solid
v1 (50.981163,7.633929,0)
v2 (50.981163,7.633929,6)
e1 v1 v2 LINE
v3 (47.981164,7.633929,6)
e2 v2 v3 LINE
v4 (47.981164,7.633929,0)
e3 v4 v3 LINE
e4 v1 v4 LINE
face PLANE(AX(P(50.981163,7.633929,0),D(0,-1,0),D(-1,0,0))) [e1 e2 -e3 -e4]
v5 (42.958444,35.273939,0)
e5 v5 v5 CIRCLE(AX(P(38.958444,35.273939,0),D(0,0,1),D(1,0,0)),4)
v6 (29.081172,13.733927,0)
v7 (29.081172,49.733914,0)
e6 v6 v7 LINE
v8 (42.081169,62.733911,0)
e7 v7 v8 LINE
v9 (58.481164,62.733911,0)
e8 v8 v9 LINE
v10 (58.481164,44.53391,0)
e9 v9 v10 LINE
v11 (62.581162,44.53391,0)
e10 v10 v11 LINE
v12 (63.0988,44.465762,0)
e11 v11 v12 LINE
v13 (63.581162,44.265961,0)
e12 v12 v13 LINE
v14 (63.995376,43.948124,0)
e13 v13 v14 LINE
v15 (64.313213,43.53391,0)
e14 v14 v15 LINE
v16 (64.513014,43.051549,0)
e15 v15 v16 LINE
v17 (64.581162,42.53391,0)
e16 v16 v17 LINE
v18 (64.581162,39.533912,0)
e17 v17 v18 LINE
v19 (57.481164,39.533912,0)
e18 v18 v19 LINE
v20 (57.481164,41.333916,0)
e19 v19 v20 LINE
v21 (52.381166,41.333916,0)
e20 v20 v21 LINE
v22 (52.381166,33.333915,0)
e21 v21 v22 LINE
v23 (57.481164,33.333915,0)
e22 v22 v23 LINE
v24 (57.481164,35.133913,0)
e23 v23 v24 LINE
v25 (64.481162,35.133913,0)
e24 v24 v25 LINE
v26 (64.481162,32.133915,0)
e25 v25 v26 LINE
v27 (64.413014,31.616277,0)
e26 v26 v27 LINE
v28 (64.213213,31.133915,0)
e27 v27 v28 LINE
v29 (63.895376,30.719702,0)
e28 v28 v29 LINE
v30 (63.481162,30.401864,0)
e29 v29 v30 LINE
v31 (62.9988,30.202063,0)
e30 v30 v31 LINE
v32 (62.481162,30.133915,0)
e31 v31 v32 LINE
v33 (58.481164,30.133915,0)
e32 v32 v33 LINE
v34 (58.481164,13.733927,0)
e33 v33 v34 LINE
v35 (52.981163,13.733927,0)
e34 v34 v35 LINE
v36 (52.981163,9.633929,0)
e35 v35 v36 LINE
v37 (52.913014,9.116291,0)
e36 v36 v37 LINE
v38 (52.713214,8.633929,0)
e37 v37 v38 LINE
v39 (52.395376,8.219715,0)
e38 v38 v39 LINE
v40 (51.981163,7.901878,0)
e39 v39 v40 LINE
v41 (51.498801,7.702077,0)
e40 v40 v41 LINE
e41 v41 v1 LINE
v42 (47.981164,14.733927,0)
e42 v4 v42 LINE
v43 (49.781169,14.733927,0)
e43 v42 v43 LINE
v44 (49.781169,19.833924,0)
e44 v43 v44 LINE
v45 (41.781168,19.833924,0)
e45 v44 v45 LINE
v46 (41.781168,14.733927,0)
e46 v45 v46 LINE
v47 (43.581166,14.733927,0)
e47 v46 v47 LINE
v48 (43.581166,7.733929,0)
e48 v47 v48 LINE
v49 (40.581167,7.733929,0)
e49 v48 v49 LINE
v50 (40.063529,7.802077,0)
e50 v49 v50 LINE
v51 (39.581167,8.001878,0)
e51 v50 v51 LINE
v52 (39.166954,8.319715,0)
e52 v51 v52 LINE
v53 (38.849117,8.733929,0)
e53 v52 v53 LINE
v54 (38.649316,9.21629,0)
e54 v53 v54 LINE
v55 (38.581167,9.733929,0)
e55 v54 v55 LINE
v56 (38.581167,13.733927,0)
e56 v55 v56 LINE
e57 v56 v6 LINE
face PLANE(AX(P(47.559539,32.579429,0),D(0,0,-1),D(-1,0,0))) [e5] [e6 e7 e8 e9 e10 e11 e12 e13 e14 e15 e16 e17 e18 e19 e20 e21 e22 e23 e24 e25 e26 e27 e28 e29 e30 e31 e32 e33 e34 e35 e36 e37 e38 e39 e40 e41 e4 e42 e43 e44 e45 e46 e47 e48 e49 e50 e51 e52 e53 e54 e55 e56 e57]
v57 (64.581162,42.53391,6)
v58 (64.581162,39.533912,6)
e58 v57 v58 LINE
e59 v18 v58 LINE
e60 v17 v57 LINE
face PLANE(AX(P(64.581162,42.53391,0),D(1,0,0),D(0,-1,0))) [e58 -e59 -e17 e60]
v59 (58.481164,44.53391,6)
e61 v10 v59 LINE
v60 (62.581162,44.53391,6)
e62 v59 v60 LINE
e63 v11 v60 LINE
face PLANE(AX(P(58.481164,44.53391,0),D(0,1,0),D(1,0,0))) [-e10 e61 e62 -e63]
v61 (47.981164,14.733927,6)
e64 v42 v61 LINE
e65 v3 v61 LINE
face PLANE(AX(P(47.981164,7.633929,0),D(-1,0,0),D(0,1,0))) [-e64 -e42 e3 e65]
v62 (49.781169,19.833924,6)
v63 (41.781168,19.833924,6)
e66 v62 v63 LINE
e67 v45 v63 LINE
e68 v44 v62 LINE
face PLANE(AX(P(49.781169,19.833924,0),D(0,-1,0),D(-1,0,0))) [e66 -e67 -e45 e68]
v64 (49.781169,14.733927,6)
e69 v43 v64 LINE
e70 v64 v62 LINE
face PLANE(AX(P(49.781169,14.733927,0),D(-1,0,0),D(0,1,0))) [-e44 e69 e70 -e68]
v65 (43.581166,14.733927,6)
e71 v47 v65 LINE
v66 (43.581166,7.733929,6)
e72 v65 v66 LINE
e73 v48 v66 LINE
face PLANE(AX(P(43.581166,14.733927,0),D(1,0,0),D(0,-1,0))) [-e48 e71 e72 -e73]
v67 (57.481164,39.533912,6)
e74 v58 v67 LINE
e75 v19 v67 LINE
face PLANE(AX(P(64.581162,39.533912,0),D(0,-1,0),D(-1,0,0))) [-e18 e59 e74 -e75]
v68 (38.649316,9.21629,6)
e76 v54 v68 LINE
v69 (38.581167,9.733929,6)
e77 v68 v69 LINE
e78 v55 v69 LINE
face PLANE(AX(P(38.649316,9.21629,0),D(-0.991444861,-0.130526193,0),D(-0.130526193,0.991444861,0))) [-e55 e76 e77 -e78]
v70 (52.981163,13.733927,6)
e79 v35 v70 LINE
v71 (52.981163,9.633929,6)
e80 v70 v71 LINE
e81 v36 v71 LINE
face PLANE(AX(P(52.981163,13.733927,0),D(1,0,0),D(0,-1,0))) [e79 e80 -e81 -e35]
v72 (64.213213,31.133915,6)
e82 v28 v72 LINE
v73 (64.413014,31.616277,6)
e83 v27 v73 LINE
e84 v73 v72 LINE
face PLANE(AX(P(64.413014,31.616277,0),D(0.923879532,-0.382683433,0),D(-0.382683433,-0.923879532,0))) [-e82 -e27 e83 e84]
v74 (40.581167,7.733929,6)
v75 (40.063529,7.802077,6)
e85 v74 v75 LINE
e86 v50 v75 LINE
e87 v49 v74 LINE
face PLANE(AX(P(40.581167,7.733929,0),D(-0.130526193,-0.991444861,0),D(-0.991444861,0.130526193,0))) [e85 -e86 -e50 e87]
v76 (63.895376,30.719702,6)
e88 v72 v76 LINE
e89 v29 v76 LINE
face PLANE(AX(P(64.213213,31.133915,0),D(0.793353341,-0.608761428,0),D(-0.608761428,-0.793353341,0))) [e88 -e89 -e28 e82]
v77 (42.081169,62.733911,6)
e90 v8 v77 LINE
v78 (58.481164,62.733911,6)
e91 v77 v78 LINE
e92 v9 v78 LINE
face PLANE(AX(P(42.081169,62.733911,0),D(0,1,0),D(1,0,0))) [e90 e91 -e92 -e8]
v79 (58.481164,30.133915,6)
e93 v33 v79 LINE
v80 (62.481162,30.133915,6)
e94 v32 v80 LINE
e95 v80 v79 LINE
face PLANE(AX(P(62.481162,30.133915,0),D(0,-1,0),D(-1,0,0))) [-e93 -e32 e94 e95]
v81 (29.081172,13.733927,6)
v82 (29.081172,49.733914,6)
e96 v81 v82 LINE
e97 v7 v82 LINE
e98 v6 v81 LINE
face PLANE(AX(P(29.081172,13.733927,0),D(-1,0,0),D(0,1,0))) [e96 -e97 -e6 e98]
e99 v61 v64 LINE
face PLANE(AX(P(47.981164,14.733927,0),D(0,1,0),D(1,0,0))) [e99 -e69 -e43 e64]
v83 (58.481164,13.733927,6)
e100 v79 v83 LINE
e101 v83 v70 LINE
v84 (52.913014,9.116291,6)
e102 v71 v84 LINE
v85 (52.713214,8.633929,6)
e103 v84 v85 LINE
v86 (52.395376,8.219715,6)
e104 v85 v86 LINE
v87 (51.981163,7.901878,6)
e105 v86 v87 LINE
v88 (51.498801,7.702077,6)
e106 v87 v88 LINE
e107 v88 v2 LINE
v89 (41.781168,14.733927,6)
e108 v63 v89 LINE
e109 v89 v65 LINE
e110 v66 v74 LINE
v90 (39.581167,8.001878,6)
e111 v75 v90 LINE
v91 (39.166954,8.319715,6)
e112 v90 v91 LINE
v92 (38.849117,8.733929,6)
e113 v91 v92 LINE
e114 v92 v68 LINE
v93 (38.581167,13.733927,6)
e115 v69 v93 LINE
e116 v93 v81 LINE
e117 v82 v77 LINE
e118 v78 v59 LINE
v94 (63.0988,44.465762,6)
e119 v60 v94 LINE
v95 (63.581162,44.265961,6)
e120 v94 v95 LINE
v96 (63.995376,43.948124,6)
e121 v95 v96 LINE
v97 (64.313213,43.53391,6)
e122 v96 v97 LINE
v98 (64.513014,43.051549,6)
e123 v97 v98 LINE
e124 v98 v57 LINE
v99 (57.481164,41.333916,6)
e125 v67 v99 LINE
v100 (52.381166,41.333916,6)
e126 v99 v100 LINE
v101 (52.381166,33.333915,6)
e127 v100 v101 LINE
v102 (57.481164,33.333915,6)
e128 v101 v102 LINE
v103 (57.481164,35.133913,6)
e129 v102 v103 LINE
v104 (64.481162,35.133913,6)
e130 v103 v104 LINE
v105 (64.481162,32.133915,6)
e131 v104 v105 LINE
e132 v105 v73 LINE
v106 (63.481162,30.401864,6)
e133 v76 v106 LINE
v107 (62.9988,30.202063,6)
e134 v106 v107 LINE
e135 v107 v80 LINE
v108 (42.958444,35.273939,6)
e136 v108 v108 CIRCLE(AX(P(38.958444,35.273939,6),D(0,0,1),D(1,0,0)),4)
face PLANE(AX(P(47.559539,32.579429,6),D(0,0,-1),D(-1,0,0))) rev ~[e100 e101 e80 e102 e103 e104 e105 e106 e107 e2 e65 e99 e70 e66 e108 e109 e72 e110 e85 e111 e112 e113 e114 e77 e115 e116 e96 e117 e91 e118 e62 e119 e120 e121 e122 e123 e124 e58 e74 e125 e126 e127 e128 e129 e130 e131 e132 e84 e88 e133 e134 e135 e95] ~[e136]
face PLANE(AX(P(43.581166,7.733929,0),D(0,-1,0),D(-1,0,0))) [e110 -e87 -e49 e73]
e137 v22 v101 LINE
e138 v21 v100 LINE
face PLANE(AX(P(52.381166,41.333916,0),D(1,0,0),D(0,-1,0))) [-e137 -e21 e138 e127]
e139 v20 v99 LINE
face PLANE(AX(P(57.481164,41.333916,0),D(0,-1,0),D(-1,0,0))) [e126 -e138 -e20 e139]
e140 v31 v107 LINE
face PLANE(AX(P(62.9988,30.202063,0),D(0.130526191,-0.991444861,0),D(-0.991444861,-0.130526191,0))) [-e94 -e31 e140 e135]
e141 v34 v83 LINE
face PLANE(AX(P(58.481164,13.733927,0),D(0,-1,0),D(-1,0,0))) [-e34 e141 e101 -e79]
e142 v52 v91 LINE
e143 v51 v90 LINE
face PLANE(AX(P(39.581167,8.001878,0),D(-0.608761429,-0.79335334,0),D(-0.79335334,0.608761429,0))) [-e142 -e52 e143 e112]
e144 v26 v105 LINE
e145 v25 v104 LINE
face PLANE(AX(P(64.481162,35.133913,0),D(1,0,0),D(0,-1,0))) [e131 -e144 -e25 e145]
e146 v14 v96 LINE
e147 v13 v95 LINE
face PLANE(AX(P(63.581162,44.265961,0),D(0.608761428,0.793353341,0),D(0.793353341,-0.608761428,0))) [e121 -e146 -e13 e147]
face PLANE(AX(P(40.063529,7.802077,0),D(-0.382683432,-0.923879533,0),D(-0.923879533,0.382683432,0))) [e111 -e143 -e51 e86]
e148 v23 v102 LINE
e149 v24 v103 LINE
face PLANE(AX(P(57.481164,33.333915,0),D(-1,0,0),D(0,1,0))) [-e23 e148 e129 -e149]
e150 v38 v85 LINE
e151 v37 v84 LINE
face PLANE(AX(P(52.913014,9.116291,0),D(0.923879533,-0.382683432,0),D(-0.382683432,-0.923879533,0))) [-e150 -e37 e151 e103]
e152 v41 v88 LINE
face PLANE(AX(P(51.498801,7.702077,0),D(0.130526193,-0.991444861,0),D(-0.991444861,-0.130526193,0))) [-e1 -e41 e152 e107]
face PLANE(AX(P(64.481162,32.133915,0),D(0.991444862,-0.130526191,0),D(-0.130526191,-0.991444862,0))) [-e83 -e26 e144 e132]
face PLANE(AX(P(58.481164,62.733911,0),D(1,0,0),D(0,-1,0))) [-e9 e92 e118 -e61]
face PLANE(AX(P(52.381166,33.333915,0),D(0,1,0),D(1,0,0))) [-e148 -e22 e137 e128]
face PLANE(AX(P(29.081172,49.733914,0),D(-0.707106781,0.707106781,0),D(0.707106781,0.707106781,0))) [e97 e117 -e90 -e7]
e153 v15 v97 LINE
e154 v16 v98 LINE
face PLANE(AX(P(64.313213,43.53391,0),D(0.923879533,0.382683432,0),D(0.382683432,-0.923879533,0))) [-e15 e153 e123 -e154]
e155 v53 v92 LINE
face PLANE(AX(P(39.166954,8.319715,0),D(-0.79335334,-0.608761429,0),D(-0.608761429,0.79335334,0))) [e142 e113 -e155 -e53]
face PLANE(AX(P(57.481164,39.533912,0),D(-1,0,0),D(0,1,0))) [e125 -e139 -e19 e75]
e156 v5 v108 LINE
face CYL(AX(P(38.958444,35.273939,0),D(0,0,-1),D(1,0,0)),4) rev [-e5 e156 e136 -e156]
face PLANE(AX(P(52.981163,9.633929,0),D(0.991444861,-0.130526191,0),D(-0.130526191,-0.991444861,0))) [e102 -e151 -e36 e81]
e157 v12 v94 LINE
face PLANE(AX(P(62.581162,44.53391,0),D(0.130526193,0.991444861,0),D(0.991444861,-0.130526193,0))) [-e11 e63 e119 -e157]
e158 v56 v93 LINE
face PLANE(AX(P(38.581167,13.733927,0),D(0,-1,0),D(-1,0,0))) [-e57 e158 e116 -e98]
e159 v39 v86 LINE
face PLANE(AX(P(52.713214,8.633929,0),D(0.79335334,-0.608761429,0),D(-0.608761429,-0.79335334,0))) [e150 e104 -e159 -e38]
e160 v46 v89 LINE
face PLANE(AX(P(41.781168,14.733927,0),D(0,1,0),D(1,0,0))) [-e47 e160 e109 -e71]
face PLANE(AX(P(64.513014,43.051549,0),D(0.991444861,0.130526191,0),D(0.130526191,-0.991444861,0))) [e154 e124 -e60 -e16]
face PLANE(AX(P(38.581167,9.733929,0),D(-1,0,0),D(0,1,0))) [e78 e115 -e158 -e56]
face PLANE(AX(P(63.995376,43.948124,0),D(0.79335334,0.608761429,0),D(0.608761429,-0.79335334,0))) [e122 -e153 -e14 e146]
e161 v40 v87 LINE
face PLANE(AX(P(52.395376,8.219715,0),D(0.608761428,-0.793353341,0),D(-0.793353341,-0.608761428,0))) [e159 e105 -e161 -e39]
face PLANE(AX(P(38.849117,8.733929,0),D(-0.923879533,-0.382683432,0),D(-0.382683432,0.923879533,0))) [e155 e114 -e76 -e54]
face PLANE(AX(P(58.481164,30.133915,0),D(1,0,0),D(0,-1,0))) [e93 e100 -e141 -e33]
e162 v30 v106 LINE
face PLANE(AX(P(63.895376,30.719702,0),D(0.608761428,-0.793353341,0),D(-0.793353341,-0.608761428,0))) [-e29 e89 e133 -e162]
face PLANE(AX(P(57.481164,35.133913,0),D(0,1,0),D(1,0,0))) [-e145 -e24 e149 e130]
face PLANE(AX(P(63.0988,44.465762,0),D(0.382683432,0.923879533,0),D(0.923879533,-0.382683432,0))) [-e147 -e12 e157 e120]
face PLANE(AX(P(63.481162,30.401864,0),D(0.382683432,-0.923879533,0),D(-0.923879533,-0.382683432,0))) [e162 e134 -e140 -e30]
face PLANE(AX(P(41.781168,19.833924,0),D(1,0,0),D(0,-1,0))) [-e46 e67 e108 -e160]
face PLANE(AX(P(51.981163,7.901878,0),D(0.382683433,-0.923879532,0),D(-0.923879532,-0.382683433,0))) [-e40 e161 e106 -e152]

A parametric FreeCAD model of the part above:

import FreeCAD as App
import Part
import Sketcher
Q = App.Units.Quantity


def add_polygon(sketch, points):
    """Adds a closed chain of lines whose ends are joined by coincident constraints."""
    first, n = sketch.GeometryCount, len(points)
    for a, b in zip(points, points[1:] + points[:1]):
        sketch.addGeometry(Part.LineSegment(App.Vector(*a, 0), App.Vector(*b, 0)), False)
    for i in range(n):
        sketch.addConstraint(Sketcher.Constraint("Coincident", first + i, 2, first + (i + 1) % n, 1))

doc = App.newDocument("Part")
body = doc.addObject("PartDesign::Body", "Body")

sketch1 = doc.addObject("Sketcher::SketchObject", "Sketch")
body.addObject(sketch1)
sketch1.AttachmentSupport = (doc.XY_Plane, [""])
sketch1.MapMode = "FlatFace"
add_polygon(sketch1, [(57.481164, 33.333915), (52.381166, 33.333915), (52.381166, 41.333916), (57.481164, 41.333916), (57.481164, 39.533912), (64.581162, 39.533912), (64.581162, 42.53391), (64.513014, 43.051549), (64.313213, 43.53391), (63.995376, 43.948124), (63.581162, 44.265961), (63.0988, 44.465762), (62.581162, 44.53391), (58.481164, 44.53391), (58.481164, 62.733911), (42.081169, 62.733911), (29.081172, 49.733914), (29.081172, 13.733927), (38.581167, 13.733927), (38.581167, 9.733929), (38.649316, 9.21629), (38.849117, 8.733929), (39.166954, 8.319715), (39.581167, 8.001878), (40.063529, 7.802077), (40.581167, 7.733929), (43.581166, 7.733929), (43.581166, 14.733927), (41.781168, 14.733927), (41.781168, 19.833924), (49.781169, 19.833924), (49.781169, 14.733927), (47.981164, 14.733927), (47.981164, 7.633929), (50.981163, 7.633929), (51.498801, 7.702077), (51.981163, 7.901878), (52.395376, 8.219715), (52.713214, 8.633929), (52.913014, 9.116291), (52.981163, 9.633929), (52.981163, 13.733927), (58.481164, 13.733927), (58.481164, 30.133915), (62.481162, 30.133915), (62.9988, 30.202063), (63.481162, 30.401864), (63.895376, 30.719702), (64.213213, 31.133915), (64.413014, 31.616277), (64.481162, 32.133915), (64.481162, 35.133913), (57.481164, 35.133913)])
sketch1.addGeometry(Part.Circle(App.Vector(38.958444, 35.273939, 0), App.Vector(0, 0, 1), 4), False)
sketch1.addConstraint([
    Sketcher.Constraint("Horizontal", 0),
    Sketcher.Constraint("Vertical", 1),
    Sketcher.Constraint("Horizontal", 2),
    Sketcher.Constraint("Vertical", 3),
    Sketcher.Constraint("Horizontal", 4),
    Sketcher.Constraint("Vertical", 5),
    Sketcher.Constraint("Horizontal", 12),
    Sketcher.Constraint("Vertical", 13),
    Sketcher.Constraint("Horizontal", 14),
    Sketcher.Constraint("Vertical", 16),
    Sketcher.Constraint("Horizontal", 17),
    Sketcher.Constraint("Vertical", 18),
    Sketcher.Constraint("Horizontal", 25),
    Sketcher.Constraint("Vertical", 26),
    Sketcher.Constraint("Horizontal", 27),
    Sketcher.Constraint("Vertical", 28),
    Sketcher.Constraint("Horizontal", 29),
    Sketcher.Constraint("Vertical", 30),
    Sketcher.Constraint("Horizontal", 31),
    Sketcher.Constraint("Vertical", 32),
    Sketcher.Constraint("Horizontal", 33),
    Sketcher.Constraint("Vertical", 40),
    Sketcher.Constraint("Horizontal", 41),
    Sketcher.Constraint("Vertical", 42),
    Sketcher.Constraint("Horizontal", 43),
    Sketcher.Constraint("Vertical", 50),
    Sketcher.Constraint("Horizontal", 51),
    Sketcher.Constraint("Vertical", 52),
    Sketcher.Constraint("Parallel", 6, 19),
    Sketcher.Constraint("Parallel", 7, 20),
    Sketcher.Constraint("Parallel", 8, 21),
    Sketcher.Constraint("Parallel", 9, 22),
    Sketcher.Constraint("Parallel", 10, 23),
    Sketcher.Constraint("Parallel", 11, 24),
    Sketcher.Constraint("Perpendicular", 19, 34),
    Sketcher.Constraint("Perpendicular", 20, 35),
    Sketcher.Constraint("Perpendicular", 21, 36),
    Sketcher.Constraint("Perpendicular", 22, 37),
    Sketcher.Constraint("Perpendicular", 23, 38),
    Sketcher.Constraint("Perpendicular", 24, 39),
    Sketcher.Constraint("Parallel", 34, 44),
    Sketcher.Constraint("Parallel", 35, 45),
    Sketcher.Constraint("Parallel", 36, 46),
    Sketcher.Constraint("Parallel", 37, 47),
    Sketcher.Constraint("Parallel", 38, 48),
    Sketcher.Constraint("Parallel", 39, 49),
    Sketcher.Constraint("Horizontal", 27, 2, 30, 2),
    Sketcher.Constraint("Horizontal", 17, 2, 40, 2),
    Sketcher.Constraint("Vertical", 13, 2, 41, 2),
    Sketcher.Constraint("Vertical", 3, 2, 51, 2),
    Sketcher.Constraint("Equal", 25, 33),
    Sketcher.Constraint("Equal", 29, 1),
    Sketcher.Constraint("Equal", 31, 3),
    Sketcher.Constraint("Equal", 33, 5),
    Sketcher.Constraint("Equal", 43, 18),
    Sketcher.Constraint("Equal", 51, 26),
    Sketcher.Constraint("Equal", 2, 28),
    Sketcher.Constraint("Equal", 4, 32),
    Sketcher.Constraint("Equal", 12, 40),
    Sketcher.Constraint("Equal", 5, 50),
    Sketcher.Constraint("Equal", 27, 52),
    Sketcher.Constraint("Equal", 6, 7),
    Sketcher.Constraint("Equal", 7, 8),
    Sketcher.Constraint("Equal", 8, 9),
    Sketcher.Constraint("Equal", 9, 10),
    Sketcher.Constraint("Equal", 10, 11),
    Sketcher.Constraint("Equal", 11, 19),
    Sketcher.Constraint("Equal", 19, 20),
    Sketcher.Constraint("Equal", 20, 21),
    Sketcher.Constraint("Equal", 21, 22),
    Sketcher.Constraint("Equal", 22, 23),
    Sketcher.Constraint("Equal", 23, 24),
    Sketcher.Constraint("Equal", 24, 34),
    Sketcher.Constraint("Equal", 34, 35),
    Sketcher.Constraint("Equal", 35, 36),
    Sketcher.Constraint("Equal", 36, 37),
    Sketcher.Constraint("Equal", 37, 38),
    Sketcher.Constraint("Equal", 38, 39),
    Sketcher.Constraint("Equal", 39, 44),
    Sketcher.Constraint("Equal", 44, 45),
    Sketcher.Constraint("Equal", 45, 46),
    Sketcher.Constraint("Equal", 46, 47),
    Sketcher.Constraint("Equal", 47, 48),
    Sketcher.Constraint("Diameter", 53, 8.0),
    Sketcher.Constraint("DistanceX", 25, 1, 25, 2, 2.999998),
    Sketcher.Constraint("DistanceX", 29, 1, 29, 2, 8.000001),
    Sketcher.Constraint("DistanceX", 43, 1, 43, 2, 3.999998),
    Sketcher.Constraint("DistanceX", 51, 2, 51, 1, 6.999998),
    Sketcher.Constraint("Angle", 15, Q("-135 deg")),
    Sketcher.Constraint("DistanceX", 4, 1, 4, 2, 7.099998),
    Sketcher.Constraint("DistanceX", 12, 2, 12, 1, 4.099998),
    Sketcher.Constraint("DistanceX", 27, 2, 27, 1, 1.799998),
    Sketcher.Constraint("DistanceX", 41, 1, 41, 2, 5.500001),
    Sketcher.Constraint("DistanceY", 13, 1, 13, 2, 18.2),
    Sketcher.Constraint("Angle", 6, Q("97.5 deg")),
    Sketcher.Constraint("Angle", 7, Q("112.5 deg")),
    Sketcher.Constraint("Angle", 8, Q("127.5 deg")),
    Sketcher.Constraint("Angle", 9, Q("142.5 deg")),
    Sketcher.Constraint("Angle", 10, Q("157.5 deg")),
    Sketcher.Constraint("DistanceY", 5, 2, 7, 2, 1.0),
    Sketcher.Constraint("DistanceY", 0, 2, 15, 2, 16.399999),
    Sketcher.Constraint("DistanceX", 17, 2, 0, 2, 13.799999),
    Sketcher.Constraint("DistanceX", 26, 2, 31, 2, 4.399999),
    Sketcher.Constraint("DistanceY", 42, 1, 42, 2, 16.399988),
    Sketcher.Constraint("DistanceX", -1, 1, 10, 2, 63.0988),
    Sketcher.Constraint("DistanceY", -1, 1, 46, 2, 30.719702),
    Sketcher.Constraint("DistanceX", 14, 2, 14, 1, 16.399995),
    Sketcher.Constraint("DistanceY", -1, 1, 53, 3, 35.273939),
    Sketcher.Constraint("DistanceX", 53, 3, 0, 2, 13.422722),
])
pad1 = doc.addObject("PartDesign::Pad", "Pad")
body.addObject(pad1)
pad1.Profile = sketch1
pad1.Length = 6

doc.recompute()
